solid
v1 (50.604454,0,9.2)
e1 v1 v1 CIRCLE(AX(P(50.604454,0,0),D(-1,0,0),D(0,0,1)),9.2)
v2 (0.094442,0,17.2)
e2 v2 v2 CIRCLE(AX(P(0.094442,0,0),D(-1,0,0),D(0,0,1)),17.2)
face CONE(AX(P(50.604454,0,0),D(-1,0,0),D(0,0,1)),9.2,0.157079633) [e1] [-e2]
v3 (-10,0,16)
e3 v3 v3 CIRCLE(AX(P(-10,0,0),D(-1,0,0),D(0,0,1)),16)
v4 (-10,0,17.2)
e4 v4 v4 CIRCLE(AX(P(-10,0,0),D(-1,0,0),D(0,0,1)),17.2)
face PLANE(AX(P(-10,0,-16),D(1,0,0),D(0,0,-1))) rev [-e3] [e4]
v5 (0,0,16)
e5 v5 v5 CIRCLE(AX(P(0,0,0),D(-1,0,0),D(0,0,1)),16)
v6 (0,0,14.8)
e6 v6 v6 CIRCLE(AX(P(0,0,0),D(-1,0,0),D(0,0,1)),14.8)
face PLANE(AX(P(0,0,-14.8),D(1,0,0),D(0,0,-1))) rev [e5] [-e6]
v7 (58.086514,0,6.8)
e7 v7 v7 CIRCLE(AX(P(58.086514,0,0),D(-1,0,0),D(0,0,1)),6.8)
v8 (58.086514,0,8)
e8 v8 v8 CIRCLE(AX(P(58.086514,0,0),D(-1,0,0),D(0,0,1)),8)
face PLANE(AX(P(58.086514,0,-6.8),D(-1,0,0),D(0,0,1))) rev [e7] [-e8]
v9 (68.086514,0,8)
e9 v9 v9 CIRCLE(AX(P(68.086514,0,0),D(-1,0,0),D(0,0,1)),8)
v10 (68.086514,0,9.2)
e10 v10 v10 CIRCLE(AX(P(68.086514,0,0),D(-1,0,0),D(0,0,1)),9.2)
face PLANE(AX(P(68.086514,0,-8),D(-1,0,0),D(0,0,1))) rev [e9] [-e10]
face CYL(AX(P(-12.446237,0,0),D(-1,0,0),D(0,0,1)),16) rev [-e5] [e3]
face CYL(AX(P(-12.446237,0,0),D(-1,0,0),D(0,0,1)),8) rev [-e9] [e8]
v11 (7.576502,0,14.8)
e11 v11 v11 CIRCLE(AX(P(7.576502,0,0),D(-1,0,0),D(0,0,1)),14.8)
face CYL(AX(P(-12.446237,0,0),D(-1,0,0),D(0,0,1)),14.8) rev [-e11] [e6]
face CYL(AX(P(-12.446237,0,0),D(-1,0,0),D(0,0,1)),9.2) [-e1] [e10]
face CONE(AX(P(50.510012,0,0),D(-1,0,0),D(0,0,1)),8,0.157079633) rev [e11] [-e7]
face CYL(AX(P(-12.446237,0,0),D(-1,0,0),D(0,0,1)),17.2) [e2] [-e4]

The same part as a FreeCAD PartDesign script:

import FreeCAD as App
import Part
import Sketcher
from FreeCAD import Vector
Q = App.Units.Quantity

doc = App.newDocument("Part")
params = doc.addObject("Spreadsheet::Sheet", "Params")
for row, (alias, value) in enumerate([
    ("sketch1_width", "10 mm"),
    ("sketch1_height", "1.2 mm"),
    ("revolution_angle", "360 deg"),
], start=1):
    params.set(f"A{row}", alias)
    params.set(f"B{row}", "=" + value)
    params.setAlias(f"B{row}", alias)

body = doc.addObject("PartDesign::Body", "Body")

# Sketch on XZ plane
sketch1 = doc.addObject("Sketcher::SketchObject", "Sketch")
body.addObject(sketch1)
sketch1.AttachmentSupport = (doc.XZ_Plane, [""])
sketch1.MapMode = "FlatFace"
sketch1.addGeometry([
    Part.LineSegment(Vector(-10, -16, 0), Vector(0, -16, 0)),  # 0
    Part.LineSegment(Vector(0, -16, 0), Vector(0, -14.8, 0)),  # 1
    Part.LineSegment(Vector(0, -14.8, 0), Vector(7.6, -14.8, 0)),  # 2
    Part.LineSegment(Vector(7.6, -14.8, 0), Vector(50.5, -8, 0)),  # 3
    Part.LineSegment(Vector(50.5, -8, 0), Vector(58.1, -6.8, 0)),  # 4
    Part.LineSegment(Vector(58.1, -6.8, 0), Vector(58.1, -8, 0)),  # 5
    Part.LineSegment(Vector(58.1, -8, 0), Vector(68.1, -8, 0)),  # 6
    Part.LineSegment(Vector(68.1, -8, 0), Vector(68.1, -9.2, 0)),  # 7
    Part.LineSegment(Vector(68.1, -9.2, 0), Vector(50.6, -9.2, 0)),  # 8
    Part.LineSegment(Vector(50.6, -9.2, 0), Vector(0.1, -17.2, 0)),  # 9
    Part.LineSegment(Vector(0.1, -17.2, 0), Vector(-10, -17.2, 0)),  # 10
    Part.LineSegment(Vector(-10, -17.2, 0), Vector(-10, -16, 0)),  # 11
], False)
sketch1.addConstraint([
    Sketcher.Constraint("Coincident", 0, 2, 1, 1),
    Sketcher.Constraint("Coincident", 1, 2, 2, 1),
    Sketcher.Constraint("Coincident", 2, 2, 3, 1),
    Sketcher.Constraint("Coincident", 3, 2, 4, 1),
    Sketcher.Constraint("Coincident", 4, 2, 5, 1),
    Sketcher.Constraint("Coincident", 5, 2, 6, 1),
    Sketcher.Constraint("Coincident", 6, 2, 7, 1),
    Sketcher.Constraint("Coincident", 7, 2, 8, 1),
    Sketcher.Constraint("Coincident", 8, 2, 9, 1),
    Sketcher.Constraint("Coincident", 9, 2, 10, 1),
    Sketcher.Constraint("Coincident", 10, 2, 11, 1),
    Sketcher.Constraint("Coincident", 11, 2, 0, 1),
    Sketcher.Constraint("Horizontal", 0),
    Sketcher.Constraint("Vertical", 1),
    Sketcher.Constraint("Horizontal", 2),
    Sketcher.Constraint("Vertical", 5),
    Sketcher.Constraint("Horizontal", 6),
    Sketcher.Constraint("Vertical", 7),
    Sketcher.Constraint("Horizontal", 8),
    Sketcher.Constraint("Horizontal", 10),
    Sketcher.Constraint("Vertical", 11),
    Sketcher.Constraint("PointOnObject", 0, 2, -2),
    Sketcher.Constraint("Parallel", 3, 4),
    Sketcher.Constraint("Parallel", 4, 9),
    Sketcher.Constraint("Horizontal", 3, 2, 5, 2),
    Sketcher.Constraint("Equal", 0, 6),
    Sketcher.Constraint("Equal", 1, 5),
    Sketcher.Constraint("Equal", 5, 7),
    Sketcher.Constraint("Equal", 7, 11),
    Sketcher.Constraint("DistanceX", 0, 1, 0, 2, 10.0),
    Sketcher.Constraint("Angle", 3, Q("9 deg")),
    Sketcher.Constraint("DistanceY", 1, 1, 1, 2, 1.2),
    Sketcher.Constraint("DistanceY", 0, 2, -1, 1, 16.0),
    Sketcher.Constraint("DistanceY", 3, 2, -1, 1, 8.0),
    Sketcher.Constraint("DistanceX", 2, 1, 2, 2, 7.576502),
    Sketcher.Constraint("DistanceX", 8, 2, 8, 1, 17.48206),
])
sketch1.setExpression("Constraints[29]", "Params.sketch1_width")
sketch1.setExpression("Constraints[31]", "Params.sketch1_height")
revolution = doc.addObject("PartDesign::Revolution", "Revolution")
body.addObject(revolution)
revolution.Profile = sketch1
revolution.ReferenceAxis = (sketch1, ["H_Axis"])
revolution.setExpression("Angle", "Params.revolution_angle")

doc.recompute()
